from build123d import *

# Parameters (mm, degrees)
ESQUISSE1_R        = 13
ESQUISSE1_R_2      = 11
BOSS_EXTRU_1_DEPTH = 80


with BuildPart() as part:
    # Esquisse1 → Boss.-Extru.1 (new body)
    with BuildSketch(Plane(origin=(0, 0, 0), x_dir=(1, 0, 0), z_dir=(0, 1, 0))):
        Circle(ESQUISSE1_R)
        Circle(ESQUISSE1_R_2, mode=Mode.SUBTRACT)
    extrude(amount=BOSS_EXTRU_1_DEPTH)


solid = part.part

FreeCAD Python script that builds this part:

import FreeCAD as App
import Part
import Sketcher

V = App.Vector
Q = App.Units.Quantity

doc = App.newDocument("Part")
body = doc.addObject("PartDesign::Body", "Body")

# Sketch on XZ plane
sketch1 = doc.addObject("Sketcher::SketchObject", "Sketch")
body.addObject(sketch1)
sketch1.AttachmentSupport = (doc.XZ_Plane, [""])
sketch1.MapMode = "FlatFace"
sketch1.addGeometry(Part.Circle(V(0, 0, 0), V(0, 0, 1), 13), False)
sketch1.addGeometry(Part.Circle(V(0, 0, 0), V(0, 0, 1), 11), False)
sketch1.addConstraint(Sketcher.Constraint("Coincident", 0, 3, -1, 1))
sketch1.addConstraint(Sketcher.Constraint("Coincident", 1, 3, -1, 1))
sketch1.addConstraint(Sketcher.Constraint("Diameter", 0, Q("26 mm")))
sketch1.addConstraint(Sketcher.Constraint("Diameter", 1, Q("22 mm")))
pad1 = doc.addObject("PartDesign::Pad", "Pad")
body.addObject(pad1)
pad1.Profile = sketch1
pad1.Length = 80
pad1.Reversed = True

doc.recompute()
